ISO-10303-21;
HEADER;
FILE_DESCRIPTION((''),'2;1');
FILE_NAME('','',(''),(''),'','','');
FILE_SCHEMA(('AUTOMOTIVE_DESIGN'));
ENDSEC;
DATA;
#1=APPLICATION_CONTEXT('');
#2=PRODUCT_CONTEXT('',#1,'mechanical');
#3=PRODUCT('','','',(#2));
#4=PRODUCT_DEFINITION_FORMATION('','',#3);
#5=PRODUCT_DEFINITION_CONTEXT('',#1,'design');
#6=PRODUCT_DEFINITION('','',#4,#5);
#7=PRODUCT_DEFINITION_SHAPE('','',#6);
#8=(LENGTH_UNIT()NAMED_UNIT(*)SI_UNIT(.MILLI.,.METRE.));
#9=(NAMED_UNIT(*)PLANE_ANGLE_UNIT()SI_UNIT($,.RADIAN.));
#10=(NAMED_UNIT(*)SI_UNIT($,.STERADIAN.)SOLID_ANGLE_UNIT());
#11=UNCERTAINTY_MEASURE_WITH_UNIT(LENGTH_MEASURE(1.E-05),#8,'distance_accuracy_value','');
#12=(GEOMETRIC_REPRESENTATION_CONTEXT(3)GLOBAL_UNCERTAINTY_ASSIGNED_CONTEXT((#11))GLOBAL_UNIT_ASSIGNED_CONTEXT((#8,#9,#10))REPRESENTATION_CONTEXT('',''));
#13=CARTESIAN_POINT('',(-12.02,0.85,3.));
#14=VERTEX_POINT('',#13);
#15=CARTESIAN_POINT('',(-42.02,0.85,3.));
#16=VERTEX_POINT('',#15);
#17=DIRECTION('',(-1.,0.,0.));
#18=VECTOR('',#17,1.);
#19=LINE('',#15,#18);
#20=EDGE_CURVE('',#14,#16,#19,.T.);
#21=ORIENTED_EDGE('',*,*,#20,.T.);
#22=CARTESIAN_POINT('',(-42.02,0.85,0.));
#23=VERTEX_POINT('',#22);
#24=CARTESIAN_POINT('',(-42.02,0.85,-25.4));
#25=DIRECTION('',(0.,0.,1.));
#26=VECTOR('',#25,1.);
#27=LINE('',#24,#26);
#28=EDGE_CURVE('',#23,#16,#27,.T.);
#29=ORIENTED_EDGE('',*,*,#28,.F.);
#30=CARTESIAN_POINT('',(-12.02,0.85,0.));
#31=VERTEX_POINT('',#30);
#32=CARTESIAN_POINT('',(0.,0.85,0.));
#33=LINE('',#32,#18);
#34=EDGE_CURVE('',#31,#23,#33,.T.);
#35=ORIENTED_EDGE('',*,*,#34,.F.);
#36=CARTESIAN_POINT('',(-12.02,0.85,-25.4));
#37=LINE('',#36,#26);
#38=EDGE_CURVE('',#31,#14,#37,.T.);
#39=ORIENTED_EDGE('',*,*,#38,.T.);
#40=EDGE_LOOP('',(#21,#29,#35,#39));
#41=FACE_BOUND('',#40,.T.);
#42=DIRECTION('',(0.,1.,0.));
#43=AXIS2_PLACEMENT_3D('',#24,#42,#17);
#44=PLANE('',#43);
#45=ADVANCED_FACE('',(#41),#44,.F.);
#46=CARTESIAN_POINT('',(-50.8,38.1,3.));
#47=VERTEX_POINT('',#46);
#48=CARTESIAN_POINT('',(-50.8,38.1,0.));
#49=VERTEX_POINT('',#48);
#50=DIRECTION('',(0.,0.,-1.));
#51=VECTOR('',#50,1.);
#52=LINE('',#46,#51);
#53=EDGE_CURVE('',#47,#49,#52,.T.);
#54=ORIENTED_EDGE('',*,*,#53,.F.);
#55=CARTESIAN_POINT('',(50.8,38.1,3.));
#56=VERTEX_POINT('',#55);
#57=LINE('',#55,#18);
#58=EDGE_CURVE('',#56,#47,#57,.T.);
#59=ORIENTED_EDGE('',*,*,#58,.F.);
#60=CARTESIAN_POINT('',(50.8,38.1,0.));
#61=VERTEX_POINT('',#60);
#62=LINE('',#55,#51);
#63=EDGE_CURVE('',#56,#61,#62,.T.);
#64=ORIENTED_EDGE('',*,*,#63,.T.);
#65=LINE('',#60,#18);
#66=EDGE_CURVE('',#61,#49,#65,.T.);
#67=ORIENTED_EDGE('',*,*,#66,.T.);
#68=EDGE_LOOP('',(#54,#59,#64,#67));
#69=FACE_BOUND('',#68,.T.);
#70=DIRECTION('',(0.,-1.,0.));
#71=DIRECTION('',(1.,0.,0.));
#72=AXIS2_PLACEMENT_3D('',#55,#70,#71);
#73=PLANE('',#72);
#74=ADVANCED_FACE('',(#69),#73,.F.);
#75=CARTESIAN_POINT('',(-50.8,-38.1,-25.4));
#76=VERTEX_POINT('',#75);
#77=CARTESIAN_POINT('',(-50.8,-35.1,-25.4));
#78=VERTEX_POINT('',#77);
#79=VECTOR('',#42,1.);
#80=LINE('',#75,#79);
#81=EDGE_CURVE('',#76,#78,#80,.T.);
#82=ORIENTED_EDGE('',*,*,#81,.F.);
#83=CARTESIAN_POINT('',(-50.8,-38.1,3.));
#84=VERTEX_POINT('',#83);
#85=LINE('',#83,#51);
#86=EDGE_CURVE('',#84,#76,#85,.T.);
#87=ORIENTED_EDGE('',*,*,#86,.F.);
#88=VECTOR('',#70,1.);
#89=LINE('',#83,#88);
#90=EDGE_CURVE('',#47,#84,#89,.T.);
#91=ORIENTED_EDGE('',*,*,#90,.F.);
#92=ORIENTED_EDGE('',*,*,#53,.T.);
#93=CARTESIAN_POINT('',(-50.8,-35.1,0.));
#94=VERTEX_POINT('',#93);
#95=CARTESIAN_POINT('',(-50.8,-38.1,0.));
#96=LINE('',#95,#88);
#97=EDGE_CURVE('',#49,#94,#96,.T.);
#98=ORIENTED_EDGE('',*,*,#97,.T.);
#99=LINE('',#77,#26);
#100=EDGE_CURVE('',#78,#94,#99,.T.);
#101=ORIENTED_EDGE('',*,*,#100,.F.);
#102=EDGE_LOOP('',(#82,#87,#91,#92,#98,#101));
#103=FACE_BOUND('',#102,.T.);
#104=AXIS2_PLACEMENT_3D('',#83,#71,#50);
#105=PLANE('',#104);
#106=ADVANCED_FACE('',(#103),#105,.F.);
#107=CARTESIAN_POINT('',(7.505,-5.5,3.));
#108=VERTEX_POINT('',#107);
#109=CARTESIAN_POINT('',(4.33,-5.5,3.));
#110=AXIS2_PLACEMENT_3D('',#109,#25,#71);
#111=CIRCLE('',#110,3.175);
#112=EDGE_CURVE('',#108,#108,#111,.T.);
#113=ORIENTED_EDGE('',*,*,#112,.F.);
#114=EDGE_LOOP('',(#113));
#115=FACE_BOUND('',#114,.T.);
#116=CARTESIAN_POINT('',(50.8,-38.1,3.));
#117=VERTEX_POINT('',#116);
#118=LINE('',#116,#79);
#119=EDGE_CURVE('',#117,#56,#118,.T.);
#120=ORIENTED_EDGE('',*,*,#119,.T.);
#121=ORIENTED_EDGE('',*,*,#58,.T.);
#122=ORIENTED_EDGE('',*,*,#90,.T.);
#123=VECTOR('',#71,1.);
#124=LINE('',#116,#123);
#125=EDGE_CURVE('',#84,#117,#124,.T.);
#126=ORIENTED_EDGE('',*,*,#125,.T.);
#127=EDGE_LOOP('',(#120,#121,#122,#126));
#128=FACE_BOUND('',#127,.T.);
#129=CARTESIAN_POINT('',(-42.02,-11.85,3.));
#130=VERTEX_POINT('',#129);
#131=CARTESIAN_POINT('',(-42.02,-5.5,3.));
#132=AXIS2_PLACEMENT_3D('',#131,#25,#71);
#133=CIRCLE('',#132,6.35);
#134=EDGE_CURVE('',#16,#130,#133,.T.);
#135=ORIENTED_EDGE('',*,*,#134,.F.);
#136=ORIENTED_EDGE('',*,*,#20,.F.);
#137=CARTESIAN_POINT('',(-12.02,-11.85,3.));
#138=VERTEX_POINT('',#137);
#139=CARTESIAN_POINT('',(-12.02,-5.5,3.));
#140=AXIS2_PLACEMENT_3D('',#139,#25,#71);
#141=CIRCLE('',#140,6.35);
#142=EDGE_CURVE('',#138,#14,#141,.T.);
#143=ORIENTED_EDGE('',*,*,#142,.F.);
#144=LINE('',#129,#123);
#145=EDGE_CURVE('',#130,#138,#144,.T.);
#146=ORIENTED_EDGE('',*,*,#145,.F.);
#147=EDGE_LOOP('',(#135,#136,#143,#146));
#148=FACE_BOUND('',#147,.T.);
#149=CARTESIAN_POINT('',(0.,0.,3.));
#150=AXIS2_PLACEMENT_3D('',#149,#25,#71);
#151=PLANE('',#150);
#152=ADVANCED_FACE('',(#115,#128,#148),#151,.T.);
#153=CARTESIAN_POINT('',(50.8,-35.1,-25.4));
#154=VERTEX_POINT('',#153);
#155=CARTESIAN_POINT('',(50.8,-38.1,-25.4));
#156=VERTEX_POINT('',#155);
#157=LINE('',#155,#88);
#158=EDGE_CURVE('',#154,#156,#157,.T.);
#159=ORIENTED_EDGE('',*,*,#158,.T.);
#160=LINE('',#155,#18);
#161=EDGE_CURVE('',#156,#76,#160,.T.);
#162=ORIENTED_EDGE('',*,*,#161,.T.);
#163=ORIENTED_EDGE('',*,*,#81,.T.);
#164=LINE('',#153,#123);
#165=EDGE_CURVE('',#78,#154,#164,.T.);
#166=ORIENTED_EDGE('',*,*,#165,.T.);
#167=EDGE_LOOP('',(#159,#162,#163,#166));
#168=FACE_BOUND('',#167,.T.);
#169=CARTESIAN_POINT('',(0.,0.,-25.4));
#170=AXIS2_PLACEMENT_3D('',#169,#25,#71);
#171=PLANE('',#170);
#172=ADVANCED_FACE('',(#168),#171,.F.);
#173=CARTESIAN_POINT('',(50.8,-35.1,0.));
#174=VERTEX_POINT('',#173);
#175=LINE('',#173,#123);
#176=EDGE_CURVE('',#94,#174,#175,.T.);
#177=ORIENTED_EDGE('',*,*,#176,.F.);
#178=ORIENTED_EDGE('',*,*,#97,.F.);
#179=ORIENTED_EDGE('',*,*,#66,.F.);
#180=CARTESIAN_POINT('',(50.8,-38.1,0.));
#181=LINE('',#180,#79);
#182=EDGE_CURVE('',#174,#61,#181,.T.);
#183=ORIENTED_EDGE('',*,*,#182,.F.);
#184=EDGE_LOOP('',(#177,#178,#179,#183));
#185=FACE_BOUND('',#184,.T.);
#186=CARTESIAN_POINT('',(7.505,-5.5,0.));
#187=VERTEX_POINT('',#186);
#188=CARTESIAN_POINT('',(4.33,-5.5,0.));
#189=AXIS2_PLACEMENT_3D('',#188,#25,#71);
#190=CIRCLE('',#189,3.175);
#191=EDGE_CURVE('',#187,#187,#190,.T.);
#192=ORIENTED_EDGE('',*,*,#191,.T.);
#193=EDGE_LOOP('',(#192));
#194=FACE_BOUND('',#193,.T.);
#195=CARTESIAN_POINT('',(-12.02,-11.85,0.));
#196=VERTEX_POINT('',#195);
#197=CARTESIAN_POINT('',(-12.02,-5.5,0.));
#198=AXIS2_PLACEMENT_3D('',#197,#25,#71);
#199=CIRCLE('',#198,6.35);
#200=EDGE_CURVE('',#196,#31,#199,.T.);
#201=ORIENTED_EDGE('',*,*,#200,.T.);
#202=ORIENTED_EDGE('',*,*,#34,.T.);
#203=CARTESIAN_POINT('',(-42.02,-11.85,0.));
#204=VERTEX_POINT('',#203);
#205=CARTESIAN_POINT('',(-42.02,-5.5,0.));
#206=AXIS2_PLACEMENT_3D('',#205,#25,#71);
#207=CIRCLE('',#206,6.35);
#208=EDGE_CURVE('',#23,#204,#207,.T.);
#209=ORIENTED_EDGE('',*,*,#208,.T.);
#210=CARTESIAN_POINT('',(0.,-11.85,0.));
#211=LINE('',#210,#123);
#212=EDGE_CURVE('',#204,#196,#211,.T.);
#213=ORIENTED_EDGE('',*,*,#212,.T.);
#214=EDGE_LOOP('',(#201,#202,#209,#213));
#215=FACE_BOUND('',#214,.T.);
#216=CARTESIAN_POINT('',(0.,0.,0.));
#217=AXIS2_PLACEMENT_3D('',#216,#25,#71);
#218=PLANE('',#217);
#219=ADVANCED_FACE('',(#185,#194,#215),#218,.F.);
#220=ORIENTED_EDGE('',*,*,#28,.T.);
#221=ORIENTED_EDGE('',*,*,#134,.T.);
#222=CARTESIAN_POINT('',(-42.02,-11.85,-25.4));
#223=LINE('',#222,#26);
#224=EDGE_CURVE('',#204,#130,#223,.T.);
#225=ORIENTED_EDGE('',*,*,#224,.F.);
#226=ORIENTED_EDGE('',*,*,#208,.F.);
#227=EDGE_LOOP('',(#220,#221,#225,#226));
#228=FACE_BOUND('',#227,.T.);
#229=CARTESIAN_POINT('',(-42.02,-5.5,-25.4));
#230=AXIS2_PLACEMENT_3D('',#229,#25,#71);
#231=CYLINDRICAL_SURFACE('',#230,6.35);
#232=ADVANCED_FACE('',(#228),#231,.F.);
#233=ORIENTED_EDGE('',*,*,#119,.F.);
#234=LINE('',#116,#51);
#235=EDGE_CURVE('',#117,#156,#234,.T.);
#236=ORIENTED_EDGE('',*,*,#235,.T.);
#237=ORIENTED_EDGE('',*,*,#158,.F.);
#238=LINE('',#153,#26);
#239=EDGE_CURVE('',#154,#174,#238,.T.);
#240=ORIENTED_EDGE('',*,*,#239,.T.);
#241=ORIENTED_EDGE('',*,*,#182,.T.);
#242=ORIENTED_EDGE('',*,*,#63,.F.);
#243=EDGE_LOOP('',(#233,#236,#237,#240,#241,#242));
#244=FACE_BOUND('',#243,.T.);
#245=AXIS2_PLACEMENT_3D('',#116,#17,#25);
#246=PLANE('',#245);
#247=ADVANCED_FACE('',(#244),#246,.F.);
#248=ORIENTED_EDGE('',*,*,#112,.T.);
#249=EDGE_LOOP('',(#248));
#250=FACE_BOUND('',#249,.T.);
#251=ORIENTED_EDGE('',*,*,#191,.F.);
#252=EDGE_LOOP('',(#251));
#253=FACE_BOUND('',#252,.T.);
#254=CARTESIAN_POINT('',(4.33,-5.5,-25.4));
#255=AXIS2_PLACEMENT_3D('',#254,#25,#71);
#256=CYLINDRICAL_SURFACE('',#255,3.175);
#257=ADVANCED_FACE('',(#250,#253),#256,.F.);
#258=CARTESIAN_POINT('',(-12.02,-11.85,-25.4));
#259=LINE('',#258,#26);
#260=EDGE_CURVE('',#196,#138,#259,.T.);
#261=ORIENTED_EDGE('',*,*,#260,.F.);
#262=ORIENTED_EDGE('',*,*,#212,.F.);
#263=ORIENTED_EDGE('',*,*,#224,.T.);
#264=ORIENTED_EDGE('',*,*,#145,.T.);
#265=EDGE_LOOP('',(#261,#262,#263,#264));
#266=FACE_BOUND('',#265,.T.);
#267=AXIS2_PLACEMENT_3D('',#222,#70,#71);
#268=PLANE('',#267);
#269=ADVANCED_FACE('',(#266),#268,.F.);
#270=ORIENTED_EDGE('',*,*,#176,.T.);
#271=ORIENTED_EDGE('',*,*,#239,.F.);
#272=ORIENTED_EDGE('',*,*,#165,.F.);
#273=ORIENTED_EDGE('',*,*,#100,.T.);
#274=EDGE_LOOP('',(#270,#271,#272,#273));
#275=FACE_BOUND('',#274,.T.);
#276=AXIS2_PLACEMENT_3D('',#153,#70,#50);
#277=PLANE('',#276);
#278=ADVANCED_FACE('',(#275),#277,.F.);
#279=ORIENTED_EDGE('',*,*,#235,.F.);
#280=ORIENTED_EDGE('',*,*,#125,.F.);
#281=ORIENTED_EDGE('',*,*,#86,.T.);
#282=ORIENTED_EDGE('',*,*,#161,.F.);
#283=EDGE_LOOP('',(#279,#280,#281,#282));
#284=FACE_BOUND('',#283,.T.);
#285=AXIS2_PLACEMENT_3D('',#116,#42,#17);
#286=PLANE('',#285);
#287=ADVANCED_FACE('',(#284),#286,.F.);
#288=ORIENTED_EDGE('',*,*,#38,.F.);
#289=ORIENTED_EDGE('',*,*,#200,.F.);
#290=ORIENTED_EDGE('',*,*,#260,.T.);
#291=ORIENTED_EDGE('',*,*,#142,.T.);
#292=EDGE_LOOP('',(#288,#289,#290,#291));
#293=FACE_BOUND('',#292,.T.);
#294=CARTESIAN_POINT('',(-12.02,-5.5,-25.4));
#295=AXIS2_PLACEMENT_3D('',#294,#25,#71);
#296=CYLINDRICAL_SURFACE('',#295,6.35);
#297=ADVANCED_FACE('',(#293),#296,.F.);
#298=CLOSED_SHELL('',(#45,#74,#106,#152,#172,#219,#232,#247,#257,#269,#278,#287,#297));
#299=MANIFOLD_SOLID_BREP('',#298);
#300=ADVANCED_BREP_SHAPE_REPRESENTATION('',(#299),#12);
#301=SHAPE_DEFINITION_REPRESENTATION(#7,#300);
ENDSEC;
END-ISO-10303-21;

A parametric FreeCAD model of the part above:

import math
import FreeCAD as App
import Part
import Sketcher
from FreeCAD import Vector
Q = App.Units.Quantity


def add_polygon(sketch, points):
    """Adds a closed chain of lines whose ends are joined by coincident constraints."""
    first, n = sketch.GeometryCount, len(points)
    for a, b in zip(points, points[1:] + points[:1]):
        sketch.addGeometry(Part.LineSegment(App.Vector(*a, 0), App.Vector(*b, 0)), False)
    for i in range(n):
        sketch.addConstraint(Sketcher.Constraint("Coincident", first + i, 2, first + (i + 1) % n, 1))

doc = App.newDocument("Part")
body = doc.addObject("PartDesign::Body", "Body")

# Sketch on XY plane
sketch1 = body.newObject("Sketcher::SketchObject", "Sketch")
sketch1.AttachmentSupport = (doc.getObject("XY_Plane"), [""])
sketch1.MapMode = "FlatFace"
add_polygon(sketch1, [(-50.8, 38.1), (-50.8, -38.1), (50.8, -38.1), (50.8, 38.1)])  # lines 0-3
sketch1.addConstraint([
    Sketcher.Constraint("Vertical", 0),
    Sketcher.Constraint("Horizontal", 1),
    Sketcher.Constraint("Vertical", 2),
    Sketcher.Constraint("Horizontal", 3),
    Sketcher.Constraint("Symmetric", 0, 2, 2, 2, -1, 1),
    Sketcher.Constraint("DistanceX", 1, 1, 1, 2, Q("4 in")),
    Sketcher.Constraint("DistanceY", 0, 2, 0, 1, Q("3 in")),
])
pad1 = body.newObject("PartDesign::Pad", "Pad")
pad1.Profile = sketch1
pad1.Length = 3

# Sketch on XY plane
sketch2 = body.newObject("Sketcher::SketchObject", "Sketch001")
sketch2.AttachmentSupport = (doc.getObject("XY_Plane"), [""])
sketch2.MapMode = "FlatFace"
add_polygon(sketch2, [(50.8, -35.1), (50.8, -38.1), (-50.8, -38.1), (-50.8, -35.1)])  # lines 0-3
sketch2.addConstraint([
    Sketcher.Constraint("Vertical", 0),
    Sketcher.Constraint("Horizontal", 1),
    Sketcher.Constraint("Vertical", 2),
    Sketcher.Constraint("Horizontal", 3),
    Sketcher.Constraint("DistanceX", 1, 2, 1, 1, Q("4 in")),
    Sketcher.Constraint("DistanceX", -1, 1, 0, 2, Q("2 in")),
    Sketcher.Constraint("DistanceY", 0, 2, -1, 1, Q("1.5 in")),
    Sketcher.Constraint("DistanceY", 0, 2, 0, 1, Q("3 mm")),
])
pad2 = body.newObject("PartDesign::Pad", "Pad001")
pad2.Profile = sketch2
pad2.Length = Q("1 in")
pad2.Reversed = True

# Sketch on XY plane
sketch3 = body.newObject("Sketcher::SketchObject", "Sketch002")
sketch3.AttachmentSupport = (doc.getObject("XY_Plane"), [""])
sketch3.MapMode = "FlatFace"
sketch3.AttachmentOffset = App.Placement(Vector(0, 0, 3), App.Rotation())
sketch3.addGeometry([
    Part.Circle(Vector(4.33, -5.5, 0), Vector(0, 0, 1), 3.175),  # 0
    Part.LineSegment(Vector(-12.02, 0.85, 0), Vector(-42.02, 0.85, 0)),  # 1
    Part.ArcOfCircle(Part.Circle(Vector(-42.02, -5.5, 0), Vector(0, 0, 1), 6.35), math.radians(90), math.radians(270)),  # 2
    Part.LineSegment(Vector(-42.02, -11.85, 0), Vector(-12.02, -11.85, 0)),  # 3
    Part.ArcOfCircle(Part.Circle(Vector(-12.02, -5.5, 0), Vector(0, 0, 1), 6.35), math.radians(-90), math.radians(90)),  # 4
], False)
sketch3.addConstraint([
    Sketcher.Constraint("Tangent", 1, 2, 2, 1),
    Sketcher.Constraint("Tangent", 2, 2, 3, 1),
    Sketcher.Constraint("Tangent", 3, 2, 4, 1),
    Sketcher.Constraint("Tangent", 4, 2, 1, 1),
    Sketcher.Constraint("Horizontal", 1),
    Sketcher.Constraint("Horizontal", 3),
    Sketcher.Constraint("Horizontal", 0, 3, 2, 3),
    Sketcher.Constraint("Diameter", 0, Q("0.25 in")),
    Sketcher.Constraint("Radius", 2, Q("0.25 in")),
    Sketcher.Constraint("DistanceX", 1, 2, 1, 1, Q("30 mm")),
    Sketcher.Constraint("DistanceX", -1, 1, 0, 3, Q("4.33 mm")),
    Sketcher.Constraint("DistanceY", 0, 3, -1, 1, Q("5.5 mm")),
    Sketcher.Constraint("DistanceX", 2, 3, -1, 1, Q("42.02 mm")),
])
pocket1 = body.newObject("PartDesign::Pocket", "Pocket")
pocket1.Profile = sketch3
pocket1.Type = "ThroughAll"

doc.recompute()
